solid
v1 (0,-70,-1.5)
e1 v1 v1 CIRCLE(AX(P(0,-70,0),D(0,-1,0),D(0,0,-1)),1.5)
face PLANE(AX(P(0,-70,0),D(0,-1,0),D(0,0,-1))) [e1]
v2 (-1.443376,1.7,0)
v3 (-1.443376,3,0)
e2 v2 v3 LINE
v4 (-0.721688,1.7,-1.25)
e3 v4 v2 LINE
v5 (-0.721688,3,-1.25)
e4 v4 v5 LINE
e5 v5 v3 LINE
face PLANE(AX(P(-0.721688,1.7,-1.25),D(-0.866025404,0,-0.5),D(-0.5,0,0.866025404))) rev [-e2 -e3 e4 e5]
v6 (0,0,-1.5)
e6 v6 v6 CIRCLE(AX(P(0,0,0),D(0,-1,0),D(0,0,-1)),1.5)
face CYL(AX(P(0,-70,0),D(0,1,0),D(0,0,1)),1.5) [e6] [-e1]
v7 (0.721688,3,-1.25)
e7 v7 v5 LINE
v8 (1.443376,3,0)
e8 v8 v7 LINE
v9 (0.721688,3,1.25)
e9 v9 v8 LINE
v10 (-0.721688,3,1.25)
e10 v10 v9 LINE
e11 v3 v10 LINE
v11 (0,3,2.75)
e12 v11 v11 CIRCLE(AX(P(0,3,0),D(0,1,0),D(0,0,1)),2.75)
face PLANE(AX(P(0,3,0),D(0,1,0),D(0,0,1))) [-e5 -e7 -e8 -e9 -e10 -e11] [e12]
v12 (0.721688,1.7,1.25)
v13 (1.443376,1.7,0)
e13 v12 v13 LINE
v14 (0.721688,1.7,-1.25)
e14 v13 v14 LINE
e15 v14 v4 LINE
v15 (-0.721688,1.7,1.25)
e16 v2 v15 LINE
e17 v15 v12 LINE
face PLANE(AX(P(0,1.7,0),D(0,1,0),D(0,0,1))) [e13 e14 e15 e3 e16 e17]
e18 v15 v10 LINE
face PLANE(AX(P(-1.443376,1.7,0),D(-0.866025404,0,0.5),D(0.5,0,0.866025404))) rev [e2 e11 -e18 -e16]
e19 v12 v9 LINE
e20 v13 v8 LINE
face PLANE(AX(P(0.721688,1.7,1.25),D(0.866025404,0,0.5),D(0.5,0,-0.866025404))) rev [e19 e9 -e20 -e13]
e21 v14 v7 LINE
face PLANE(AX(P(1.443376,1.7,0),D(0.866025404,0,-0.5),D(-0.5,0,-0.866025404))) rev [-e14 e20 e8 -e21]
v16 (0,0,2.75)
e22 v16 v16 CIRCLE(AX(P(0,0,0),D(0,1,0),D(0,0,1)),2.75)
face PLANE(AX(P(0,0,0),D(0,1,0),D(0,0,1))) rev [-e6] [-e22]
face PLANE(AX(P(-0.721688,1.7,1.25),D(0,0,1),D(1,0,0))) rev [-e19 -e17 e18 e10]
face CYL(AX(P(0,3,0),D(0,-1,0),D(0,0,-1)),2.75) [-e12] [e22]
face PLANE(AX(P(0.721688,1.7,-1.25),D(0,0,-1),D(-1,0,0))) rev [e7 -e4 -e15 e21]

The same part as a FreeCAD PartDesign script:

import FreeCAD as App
import Part
import Sketcher

V = App.Vector
Q = App.Units.Quantity


def add_polygon(sketch, points):
    """Adds a closed chain of lines whose ends are joined by coincident constraints."""
    first, n = sketch.GeometryCount, len(points)
    for a, b in zip(points, points[1:] + points[:1]):
        sketch.addGeometry(Part.LineSegment(App.Vector(*a, 0), App.Vector(*b, 0)), False)
    for i in range(n):
        sketch.addConstraint(Sketcher.Constraint("Coincident", first + i, 2, first + (i + 1) % n, 1))

doc = App.newDocument("Part")
body = doc.addObject("PartDesign::Body", "Body")

sketch1 = body.newObject("Sketcher::SketchObject", "Sketch")
sketch1.AttachmentSupport = (doc.getObject("XZ_Plane"), [""])
sketch1.MapMode = "FlatFace"
sketch1.addGeometry(Part.Circle(V(0, 0, 0), V(0, 0, 1), 2.75), False)
sketch1.addConstraint(Sketcher.Constraint("Coincident", 0, 3, -1, 1))
sketch1.addConstraint(Sketcher.Constraint("Diameter", 0, 5.5))
pad1 = body.newObject("PartDesign::Pad", "Pad")
pad1.Profile = sketch1
pad1.Length = 3
pad1.Reversed = True

sketch2 = body.newObject("Sketcher::SketchObject", "Sketch001")
sketch2.AttachmentSupport = (doc.getObject("XZ_Plane"), [""])
sketch2.MapMode = "FlatFace"
sketch2.AttachmentOffset = App.Placement(V(0, 0, -3), App.Rotation())
add_polygon(sketch2, [(1.443376, 0), (0.721688, -1.25), (-0.721688, -1.25), (-1.443376, 0), (-0.721688, 1.25), (0.721688, 1.25)])
sketch2.addConstraint(Sketcher.Constraint("Horizontal", 1))
sketch2.addConstraint(Sketcher.Constraint("Horizontal", 4))
sketch2.addConstraint(Sketcher.Constraint("Symmetric", 0, 2, 3, 2, -1, 1))
sketch2.addConstraint(Sketcher.Constraint("Symmetric", 2, 2, 5, 2, -1, 1))
sketch2.addConstraint(Sketcher.Constraint("PointOnObject", 2, 2, -1))
sketch2.addConstraint(Sketcher.Constraint("Parallel", 2, 5))
sketch2.addConstraint(Sketcher.Constraint("Vertical", 1, 2, 3, 2))
sketch2.addConstraint(Sketcher.Constraint("Angle", 0, Q("-120 deg")))
sketch2.addConstraint(Sketcher.Constraint("DistanceY", 1, 2, 3, 2, 2.5))
sketch2.addConstraint(Sketcher.Constraint("DistanceX", 1, 2, 1, 1, 1.443376))
pocket1 = body.newObject("PartDesign::Pocket", "Pocket")
pocket1.Profile = sketch2
pocket1.Length = 1.3
pocket1.Reversed = True

sketch3 = body.newObject("Sketcher::SketchObject", "Sketch002")
sketch3.AttachmentSupport = (doc.getObject("XZ_Plane"), [""])
sketch3.MapMode = "FlatFace"
sketch3.addGeometry(Part.Circle(V(0, 0, 0), V(0, 0, 1), 1.5), False)
sketch3.addConstraint(Sketcher.Constraint("Coincident", 0, 3, -1, 1))
sketch3.addConstraint(Sketcher.Constraint("Diameter", 0, 3.0))
pad2 = body.newObject("PartDesign::Pad", "Pad001")
pad2.Profile = sketch3
pad2.Length = 70

doc.recompute()
